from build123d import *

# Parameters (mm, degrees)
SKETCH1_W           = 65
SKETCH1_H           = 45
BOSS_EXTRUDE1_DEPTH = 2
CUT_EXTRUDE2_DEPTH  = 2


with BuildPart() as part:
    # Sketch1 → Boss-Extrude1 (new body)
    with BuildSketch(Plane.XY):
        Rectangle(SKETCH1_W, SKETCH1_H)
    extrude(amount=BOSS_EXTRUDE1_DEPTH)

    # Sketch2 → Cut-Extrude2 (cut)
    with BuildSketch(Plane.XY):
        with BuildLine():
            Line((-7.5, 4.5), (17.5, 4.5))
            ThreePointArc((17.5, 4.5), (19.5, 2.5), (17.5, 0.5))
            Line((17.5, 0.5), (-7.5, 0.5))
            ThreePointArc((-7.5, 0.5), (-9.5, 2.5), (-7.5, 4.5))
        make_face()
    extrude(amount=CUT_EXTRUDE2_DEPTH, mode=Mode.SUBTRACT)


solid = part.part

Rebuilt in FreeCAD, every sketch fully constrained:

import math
import FreeCAD as App
import Part
import Sketcher

V = App.Vector
Q = App.Units.Quantity


def add_polygon(sketch, points):
    """Adds a closed chain of lines whose ends are joined by coincident constraints."""
    first, n = sketch.GeometryCount, len(points)
    for a, b in zip(points, points[1:] + points[:1]):
        sketch.addGeometry(Part.LineSegment(App.Vector(*a, 0), App.Vector(*b, 0)), False)
    for i in range(n):
        sketch.addConstraint(Sketcher.Constraint("Coincident", first + i, 2, first + (i + 1) % n, 1))

doc = App.newDocument("Part")
body = doc.addObject("PartDesign::Body", "Body")

sketch1 = body.newObject("Sketcher::SketchObject", "Sketch")
sketch1.AttachmentSupport = (doc.getObject("XY_Plane"), [""])
sketch1.MapMode = "FlatFace"
add_polygon(sketch1, [(-32, 22), (-32, -22), (32, -22), (32, 22)])
sketch1.addConstraint([
    Sketcher.Constraint("Vertical", 0),
    Sketcher.Constraint("Horizontal", 1),
    Sketcher.Constraint("Vertical", 2),
    Sketcher.Constraint("Horizontal", 3),
    Sketcher.Constraint("Symmetric", 0, 2, 2, 2, -1, 1),
    Sketcher.Constraint("DistanceX", 1, 1, 1, 2, Q("65 mm")),
    Sketcher.Constraint("DistanceY", 0, 2, 0, 1, Q("45 mm")),
])
pad1 = body.newObject("PartDesign::Pad", "Pad")
pad1.Profile = sketch1
pad1.Length = 2

sketch2 = body.newObject("Sketcher::SketchObject", "Sketch001")
sketch2.AttachmentSupport = (doc.getObject("XY_Plane"), [""])
sketch2.MapMode = "FlatFace"
sketch2.addGeometry([
    Part.LineSegment(V(17.5, 4.5, 0), V(-7.5, 4.5, 0)),
    Part.ArcOfCircle(Part.Circle(V(-7.5, 2.5, 0), V(0, 0, 1), 2), math.radians(90), math.radians(270)),
    Part.LineSegment(V(-7.5, 0.5, 0), V(17.5, 0.5, 0)),
    Part.ArcOfCircle(Part.Circle(V(17.5, 2.5, 0), V(0, 0, 1), 2), math.radians(-90), math.radians(90)),
], False)
sketch2.addConstraint([
    Sketcher.Constraint("Tangent", 0, 2, 1, 1),
    Sketcher.Constraint("Tangent", 1, 2, 2, 1),
    Sketcher.Constraint("Tangent", 2, 2, 3, 1),
    Sketcher.Constraint("Tangent", 3, 2, 0, 1),
    Sketcher.Constraint("Horizontal", 0),
    Sketcher.Constraint("Horizontal", 2),
    Sketcher.Constraint("Radius", 1, Q("2 mm")),
    Sketcher.Constraint("DistanceX", 0, 2, 0, 1, Q("25 mm")),
    Sketcher.Constraint("DistanceX", 1, 3, -1, 1, Q("7.5 mm")),
    Sketcher.Constraint("DistanceY", -1, 1, 1, 3, Q("2.5 mm")),
])
pocket1 = body.newObject("PartDesign::Pocket", "Pocket")
pocket1.Profile = sketch2
pocket1.Length = 2
pocket1.Reversed = True

doc.recompute()
